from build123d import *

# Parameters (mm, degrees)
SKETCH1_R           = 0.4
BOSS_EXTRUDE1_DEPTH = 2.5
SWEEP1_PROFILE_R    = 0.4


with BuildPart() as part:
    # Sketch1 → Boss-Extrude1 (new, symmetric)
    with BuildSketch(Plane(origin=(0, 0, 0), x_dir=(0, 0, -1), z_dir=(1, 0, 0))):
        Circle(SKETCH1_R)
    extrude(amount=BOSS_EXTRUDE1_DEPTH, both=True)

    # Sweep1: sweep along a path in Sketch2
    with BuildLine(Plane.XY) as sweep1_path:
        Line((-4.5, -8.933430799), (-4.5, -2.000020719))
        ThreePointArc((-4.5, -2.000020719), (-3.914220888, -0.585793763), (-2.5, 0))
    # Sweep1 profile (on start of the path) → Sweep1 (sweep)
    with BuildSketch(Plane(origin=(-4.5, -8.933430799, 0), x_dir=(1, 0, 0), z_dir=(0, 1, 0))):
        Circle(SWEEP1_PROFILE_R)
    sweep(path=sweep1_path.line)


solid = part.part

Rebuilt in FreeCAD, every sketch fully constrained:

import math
import FreeCAD as App
import Part
import Sketcher

V = App.Vector
Q = App.Units.Quantity

doc = App.newDocument("Part")
params = doc.addObject("Spreadsheet::Sheet", "Params")
for row, (alias, value) in enumerate([
    ("sketch1_diameter", "0.8 mm"),
    ("pad1_length", "5 mm"),
    ("sketch2_diameter", "0.8 mm"),
    ("sketch3_radius", "2 mm"),
], start=1):
    params.set(f"A{row}", alias)
    params.set(f"B{row}", "=" + value)
    params.setAlias(f"B{row}", alias)

body = doc.addObject("PartDesign::Body", "Body")

# Sketch on YZ plane
sketch1 = body.newObject("Sketcher::SketchObject", "Sketch")
sketch1.AttachmentSupport = (doc.getObject("YZ_Plane"), [""])
sketch1.MapMode = "FlatFace"
sketch1.addGeometry(Part.Circle(V(0, 0, 0), V(0, 0, 1), 0.4), False)
sketch1.addConstraint([
    Sketcher.Constraint("Coincident", 0, 3, -1, 1),
    Sketcher.Constraint("Diameter", 0, Q("0.8 mm")),
])
sketch1.setExpression("Constraints[1]", "Params.sketch1_diameter")
pad1 = body.newObject("PartDesign::Pad", "Pad")
pad1.Profile = sketch1
pad1.setExpression("Length", "Params.pad1_length")
pad1.Midplane = True

# Sketch on XZ plane
sketch2 = body.newObject("Sketcher::SketchObject", "Sketch001")
sketch2.AttachmentSupport = (doc.getObject("XZ_Plane"), [""])
sketch2.MapMode = "FlatFace"
sketch2.AttachmentOffset = App.Placement(V(0, 0, 8.933431), App.Rotation())
sketch2.addGeometry(Part.Circle(V(-4.5, 0, 0), V(0, 0, 1), 0.4), False)
sketch2.addConstraint([
    Sketcher.Constraint("PointOnObject", 0, 3, -1),
    Sketcher.Constraint("Diameter", 0, Q("0.8 mm")),
    Sketcher.Constraint("DistanceX", 0, 3, -1, 1, Q("4.5 mm")),
])
sketch2.setExpression("Constraints[1]", "Params.sketch2_diameter")

# Sketch on XY plane
sketch3 = body.newObject("Sketcher::SketchObject", "Sketch002")
sketch3.AttachmentSupport = (doc.getObject("XY_Plane"), [""])
sketch3.MapMode = "FlatFace"
sketch3.addGeometry([
    Part.LineSegment(V(-4.5, -8.933431, 0), V(-4.5, -2.000021, 0)),
    Part.ArcOfCircle(Part.Circle(V(-2.5, -2, 0), V(0, 0, 1), 2), math.radians(90), math.radians(180.000594)),
], False)
sketch3.addConstraint([
    Sketcher.Constraint("Coincident", 0, 2, 1, 2),
    Sketcher.Constraint("Vertical", 0),
    Sketcher.Constraint("PointOnObject", 1, 1, -1),
    Sketcher.Constraint("Radius", 1, Q("2 mm")),
    Sketcher.Constraint("DistanceX", 0, 2, 1, 1, Q("2 mm")),
    Sketcher.Constraint("DistanceX", 1, 3, -1, 1, Q("2.5 mm")),
    Sketcher.Constraint("DistanceY", 0, 1, 0, 2, Q("6.93341 mm")),
    Sketcher.Constraint("DistanceY", 0, 1, -1, 1, Q("8.933431 mm")),
])
sketch3.setExpression("Constraints[3]", "Params.sketch3_radius")
doc.recompute()

additivepipe = body.newObject("PartDesign::AdditivePipe", "AdditivePipe")
additivepipe.Profile = sketch2
additivepipe.Spine = (sketch3, ["Edge1", "Edge2"])

doc.recompute()
